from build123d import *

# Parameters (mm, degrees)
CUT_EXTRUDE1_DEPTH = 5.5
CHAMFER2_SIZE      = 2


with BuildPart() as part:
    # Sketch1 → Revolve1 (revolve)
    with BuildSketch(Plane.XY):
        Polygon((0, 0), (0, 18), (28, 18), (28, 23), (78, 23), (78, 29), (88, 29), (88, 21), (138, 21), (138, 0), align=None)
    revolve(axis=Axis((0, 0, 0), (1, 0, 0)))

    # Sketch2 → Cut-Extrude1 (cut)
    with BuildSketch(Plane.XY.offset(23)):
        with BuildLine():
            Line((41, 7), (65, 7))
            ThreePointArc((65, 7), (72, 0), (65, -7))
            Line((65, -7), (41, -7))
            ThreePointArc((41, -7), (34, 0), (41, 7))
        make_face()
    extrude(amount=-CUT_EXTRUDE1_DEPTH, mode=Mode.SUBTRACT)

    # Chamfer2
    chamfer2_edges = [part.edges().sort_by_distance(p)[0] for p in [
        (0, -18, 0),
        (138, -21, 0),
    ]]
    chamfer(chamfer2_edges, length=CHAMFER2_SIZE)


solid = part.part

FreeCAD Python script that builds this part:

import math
import FreeCAD as App
import Part
import Sketcher
Q = App.Units.Quantity


def edges_at(feature, points):
    """Names of the edges that pass closest to the given points."""
    edges = feature.Shape.Edges
    near = lambda p: min(range(len(edges)), key=lambda i: edges[i].distToShape(Part.Vertex(*p))[0])
    return sorted({f"Edge{near(p) + 1}" for p in points})

doc = App.newDocument("Part")
body = doc.addObject("PartDesign::Body", "Body")

# Sketch on XY plane
sketch1 = body.newObject("Sketcher::SketchObject", "Sketch")
sketch1.AttachmentSupport = (doc.getObject("XY_Plane"), [""])
sketch1.MapMode = "FlatFace"
sketch1.addGeometry([
    Part.LineSegment(App.Vector(0, 18, 0), App.Vector(0, 0, 0)),  # 0
    Part.LineSegment(App.Vector(0, 0, 0), App.Vector(138, 0, 0)),  # 1
    Part.LineSegment(App.Vector(138, 0, 0), App.Vector(138, 21, 0)),  # 2
    Part.LineSegment(App.Vector(138, 21, 0), App.Vector(88, 21, 0)),  # 3
    Part.LineSegment(App.Vector(88, 21, 0), App.Vector(88, 29, 0)),  # 4
    Part.LineSegment(App.Vector(88, 29, 0), App.Vector(78, 29, 0)),  # 5
    Part.LineSegment(App.Vector(78, 29, 0), App.Vector(78, 23, 0)),  # 6
    Part.LineSegment(App.Vector(78, 23, 0), App.Vector(28, 23, 0)),  # 7
    Part.LineSegment(App.Vector(28, 23, 0), App.Vector(28, 18, 0)),  # 8
    Part.LineSegment(App.Vector(28, 18, 0), App.Vector(0, 18, 0)),  # 9
], False)
sketch1.addConstraint([
    Sketcher.Constraint("Coincident", 0, 2, 1, 1),
    Sketcher.Constraint("Coincident", 1, 2, 2, 1),
    Sketcher.Constraint("Coincident", 2, 2, 3, 1),
    Sketcher.Constraint("Coincident", 3, 2, 4, 1),
    Sketcher.Constraint("Coincident", 4, 2, 5, 1),
    Sketcher.Constraint("Coincident", 5, 2, 6, 1),
    Sketcher.Constraint("Coincident", 6, 2, 7, 1),
    Sketcher.Constraint("Coincident", 7, 2, 8, 1),
    Sketcher.Constraint("Coincident", 8, 2, 9, 1),
    Sketcher.Constraint("Coincident", 9, 2, 0, 1),
    Sketcher.Constraint("Vertical", 0),
    Sketcher.Constraint("Horizontal", 1),
    Sketcher.Constraint("Vertical", 2),
    Sketcher.Constraint("Horizontal", 3),
    Sketcher.Constraint("Vertical", 4),
    Sketcher.Constraint("Horizontal", 5),
    Sketcher.Constraint("Vertical", 6),
    Sketcher.Constraint("Horizontal", 7),
    Sketcher.Constraint("Vertical", 8),
    Sketcher.Constraint("Horizontal", 9),
    Sketcher.Constraint("Coincident", 0, 2, -1, 1),
    Sketcher.Constraint("Equal", 3, 7),
    Sketcher.Constraint("DistanceX", 1, 1, 1, 2, Q("138 mm")),
    Sketcher.Constraint("DistanceX", 3, 2, 3, 1, Q("50 mm")),
    Sketcher.Constraint("DistanceX", 5, 2, 5, 1, Q("10 mm")),
    Sketcher.Constraint("DistanceY", 0, 2, 0, 1, Q("18 mm")),
    Sketcher.Constraint("DistanceY", 2, 1, 2, 2, Q("21 mm")),
    Sketcher.Constraint("DistanceY", 4, 1, 4, 2, Q("8 mm")),
    Sketcher.Constraint("DistanceY", 6, 2, 6, 1, Q("6 mm")),
])
revolution = body.newObject("PartDesign::Revolution", "Revolution")
revolution.Profile = sketch1
revolution.ReferenceAxis = (sketch1, ["H_Axis"])
revolution.Angle = 360

# Sketch on XY plane
sketch2 = body.newObject("Sketcher::SketchObject", "Sketch001")
sketch2.AttachmentSupport = (doc.getObject("XY_Plane"), [""])
sketch2.MapMode = "FlatFace"
sketch2.AttachmentOffset = App.Placement(App.Vector(0, 0, 23), App.Rotation())
sketch2.addGeometry([
    Part.LineSegment(App.Vector(65, 7, 0), App.Vector(41, 7, 0)),
    Part.ArcOfCircle(Part.Circle(App.Vector(41, 0, 0), App.Vector(0, 0, 1), 7), math.radians(90), math.radians(270)),
    Part.LineSegment(App.Vector(41, -7, 0), App.Vector(65, -7, 0)),
    Part.ArcOfCircle(Part.Circle(App.Vector(65, 0, 0), App.Vector(0, 0, 1), 7), math.radians(-90), math.radians(90)),
], False)
sketch2.addConstraint([
    Sketcher.Constraint("Tangent", 0, 2, 1, 1),
    Sketcher.Constraint("Tangent", 1, 2, 2, 1),
    Sketcher.Constraint("Tangent", 2, 2, 3, 1),
    Sketcher.Constraint("Tangent", 3, 2, 0, 1),
    Sketcher.Constraint("Horizontal", 0),
    Sketcher.Constraint("Horizontal", 2),
    Sketcher.Constraint("PointOnObject", 1, 3, -1),
    Sketcher.Constraint("Radius", 1, Q("7 mm")),
    Sketcher.Constraint("DistanceX", 0, 2, 0, 1, Q("24 mm")),
    Sketcher.Constraint("DistanceX", -1, 1, 1, 3, Q("41 mm")),
])
pocket1 = body.newObject("PartDesign::Pocket", "Pocket")
pocket1.Profile = sketch2
pocket1.Length = 5.5
doc.recompute()

chamfer = body.newObject("PartDesign::Chamfer", "Chamfer")
chamfer.Base = (pocket1, edges_at(pocket1, [(0, -18, 0), (138, -21, 0)]))
chamfer.Size = 2

doc.recompute()
